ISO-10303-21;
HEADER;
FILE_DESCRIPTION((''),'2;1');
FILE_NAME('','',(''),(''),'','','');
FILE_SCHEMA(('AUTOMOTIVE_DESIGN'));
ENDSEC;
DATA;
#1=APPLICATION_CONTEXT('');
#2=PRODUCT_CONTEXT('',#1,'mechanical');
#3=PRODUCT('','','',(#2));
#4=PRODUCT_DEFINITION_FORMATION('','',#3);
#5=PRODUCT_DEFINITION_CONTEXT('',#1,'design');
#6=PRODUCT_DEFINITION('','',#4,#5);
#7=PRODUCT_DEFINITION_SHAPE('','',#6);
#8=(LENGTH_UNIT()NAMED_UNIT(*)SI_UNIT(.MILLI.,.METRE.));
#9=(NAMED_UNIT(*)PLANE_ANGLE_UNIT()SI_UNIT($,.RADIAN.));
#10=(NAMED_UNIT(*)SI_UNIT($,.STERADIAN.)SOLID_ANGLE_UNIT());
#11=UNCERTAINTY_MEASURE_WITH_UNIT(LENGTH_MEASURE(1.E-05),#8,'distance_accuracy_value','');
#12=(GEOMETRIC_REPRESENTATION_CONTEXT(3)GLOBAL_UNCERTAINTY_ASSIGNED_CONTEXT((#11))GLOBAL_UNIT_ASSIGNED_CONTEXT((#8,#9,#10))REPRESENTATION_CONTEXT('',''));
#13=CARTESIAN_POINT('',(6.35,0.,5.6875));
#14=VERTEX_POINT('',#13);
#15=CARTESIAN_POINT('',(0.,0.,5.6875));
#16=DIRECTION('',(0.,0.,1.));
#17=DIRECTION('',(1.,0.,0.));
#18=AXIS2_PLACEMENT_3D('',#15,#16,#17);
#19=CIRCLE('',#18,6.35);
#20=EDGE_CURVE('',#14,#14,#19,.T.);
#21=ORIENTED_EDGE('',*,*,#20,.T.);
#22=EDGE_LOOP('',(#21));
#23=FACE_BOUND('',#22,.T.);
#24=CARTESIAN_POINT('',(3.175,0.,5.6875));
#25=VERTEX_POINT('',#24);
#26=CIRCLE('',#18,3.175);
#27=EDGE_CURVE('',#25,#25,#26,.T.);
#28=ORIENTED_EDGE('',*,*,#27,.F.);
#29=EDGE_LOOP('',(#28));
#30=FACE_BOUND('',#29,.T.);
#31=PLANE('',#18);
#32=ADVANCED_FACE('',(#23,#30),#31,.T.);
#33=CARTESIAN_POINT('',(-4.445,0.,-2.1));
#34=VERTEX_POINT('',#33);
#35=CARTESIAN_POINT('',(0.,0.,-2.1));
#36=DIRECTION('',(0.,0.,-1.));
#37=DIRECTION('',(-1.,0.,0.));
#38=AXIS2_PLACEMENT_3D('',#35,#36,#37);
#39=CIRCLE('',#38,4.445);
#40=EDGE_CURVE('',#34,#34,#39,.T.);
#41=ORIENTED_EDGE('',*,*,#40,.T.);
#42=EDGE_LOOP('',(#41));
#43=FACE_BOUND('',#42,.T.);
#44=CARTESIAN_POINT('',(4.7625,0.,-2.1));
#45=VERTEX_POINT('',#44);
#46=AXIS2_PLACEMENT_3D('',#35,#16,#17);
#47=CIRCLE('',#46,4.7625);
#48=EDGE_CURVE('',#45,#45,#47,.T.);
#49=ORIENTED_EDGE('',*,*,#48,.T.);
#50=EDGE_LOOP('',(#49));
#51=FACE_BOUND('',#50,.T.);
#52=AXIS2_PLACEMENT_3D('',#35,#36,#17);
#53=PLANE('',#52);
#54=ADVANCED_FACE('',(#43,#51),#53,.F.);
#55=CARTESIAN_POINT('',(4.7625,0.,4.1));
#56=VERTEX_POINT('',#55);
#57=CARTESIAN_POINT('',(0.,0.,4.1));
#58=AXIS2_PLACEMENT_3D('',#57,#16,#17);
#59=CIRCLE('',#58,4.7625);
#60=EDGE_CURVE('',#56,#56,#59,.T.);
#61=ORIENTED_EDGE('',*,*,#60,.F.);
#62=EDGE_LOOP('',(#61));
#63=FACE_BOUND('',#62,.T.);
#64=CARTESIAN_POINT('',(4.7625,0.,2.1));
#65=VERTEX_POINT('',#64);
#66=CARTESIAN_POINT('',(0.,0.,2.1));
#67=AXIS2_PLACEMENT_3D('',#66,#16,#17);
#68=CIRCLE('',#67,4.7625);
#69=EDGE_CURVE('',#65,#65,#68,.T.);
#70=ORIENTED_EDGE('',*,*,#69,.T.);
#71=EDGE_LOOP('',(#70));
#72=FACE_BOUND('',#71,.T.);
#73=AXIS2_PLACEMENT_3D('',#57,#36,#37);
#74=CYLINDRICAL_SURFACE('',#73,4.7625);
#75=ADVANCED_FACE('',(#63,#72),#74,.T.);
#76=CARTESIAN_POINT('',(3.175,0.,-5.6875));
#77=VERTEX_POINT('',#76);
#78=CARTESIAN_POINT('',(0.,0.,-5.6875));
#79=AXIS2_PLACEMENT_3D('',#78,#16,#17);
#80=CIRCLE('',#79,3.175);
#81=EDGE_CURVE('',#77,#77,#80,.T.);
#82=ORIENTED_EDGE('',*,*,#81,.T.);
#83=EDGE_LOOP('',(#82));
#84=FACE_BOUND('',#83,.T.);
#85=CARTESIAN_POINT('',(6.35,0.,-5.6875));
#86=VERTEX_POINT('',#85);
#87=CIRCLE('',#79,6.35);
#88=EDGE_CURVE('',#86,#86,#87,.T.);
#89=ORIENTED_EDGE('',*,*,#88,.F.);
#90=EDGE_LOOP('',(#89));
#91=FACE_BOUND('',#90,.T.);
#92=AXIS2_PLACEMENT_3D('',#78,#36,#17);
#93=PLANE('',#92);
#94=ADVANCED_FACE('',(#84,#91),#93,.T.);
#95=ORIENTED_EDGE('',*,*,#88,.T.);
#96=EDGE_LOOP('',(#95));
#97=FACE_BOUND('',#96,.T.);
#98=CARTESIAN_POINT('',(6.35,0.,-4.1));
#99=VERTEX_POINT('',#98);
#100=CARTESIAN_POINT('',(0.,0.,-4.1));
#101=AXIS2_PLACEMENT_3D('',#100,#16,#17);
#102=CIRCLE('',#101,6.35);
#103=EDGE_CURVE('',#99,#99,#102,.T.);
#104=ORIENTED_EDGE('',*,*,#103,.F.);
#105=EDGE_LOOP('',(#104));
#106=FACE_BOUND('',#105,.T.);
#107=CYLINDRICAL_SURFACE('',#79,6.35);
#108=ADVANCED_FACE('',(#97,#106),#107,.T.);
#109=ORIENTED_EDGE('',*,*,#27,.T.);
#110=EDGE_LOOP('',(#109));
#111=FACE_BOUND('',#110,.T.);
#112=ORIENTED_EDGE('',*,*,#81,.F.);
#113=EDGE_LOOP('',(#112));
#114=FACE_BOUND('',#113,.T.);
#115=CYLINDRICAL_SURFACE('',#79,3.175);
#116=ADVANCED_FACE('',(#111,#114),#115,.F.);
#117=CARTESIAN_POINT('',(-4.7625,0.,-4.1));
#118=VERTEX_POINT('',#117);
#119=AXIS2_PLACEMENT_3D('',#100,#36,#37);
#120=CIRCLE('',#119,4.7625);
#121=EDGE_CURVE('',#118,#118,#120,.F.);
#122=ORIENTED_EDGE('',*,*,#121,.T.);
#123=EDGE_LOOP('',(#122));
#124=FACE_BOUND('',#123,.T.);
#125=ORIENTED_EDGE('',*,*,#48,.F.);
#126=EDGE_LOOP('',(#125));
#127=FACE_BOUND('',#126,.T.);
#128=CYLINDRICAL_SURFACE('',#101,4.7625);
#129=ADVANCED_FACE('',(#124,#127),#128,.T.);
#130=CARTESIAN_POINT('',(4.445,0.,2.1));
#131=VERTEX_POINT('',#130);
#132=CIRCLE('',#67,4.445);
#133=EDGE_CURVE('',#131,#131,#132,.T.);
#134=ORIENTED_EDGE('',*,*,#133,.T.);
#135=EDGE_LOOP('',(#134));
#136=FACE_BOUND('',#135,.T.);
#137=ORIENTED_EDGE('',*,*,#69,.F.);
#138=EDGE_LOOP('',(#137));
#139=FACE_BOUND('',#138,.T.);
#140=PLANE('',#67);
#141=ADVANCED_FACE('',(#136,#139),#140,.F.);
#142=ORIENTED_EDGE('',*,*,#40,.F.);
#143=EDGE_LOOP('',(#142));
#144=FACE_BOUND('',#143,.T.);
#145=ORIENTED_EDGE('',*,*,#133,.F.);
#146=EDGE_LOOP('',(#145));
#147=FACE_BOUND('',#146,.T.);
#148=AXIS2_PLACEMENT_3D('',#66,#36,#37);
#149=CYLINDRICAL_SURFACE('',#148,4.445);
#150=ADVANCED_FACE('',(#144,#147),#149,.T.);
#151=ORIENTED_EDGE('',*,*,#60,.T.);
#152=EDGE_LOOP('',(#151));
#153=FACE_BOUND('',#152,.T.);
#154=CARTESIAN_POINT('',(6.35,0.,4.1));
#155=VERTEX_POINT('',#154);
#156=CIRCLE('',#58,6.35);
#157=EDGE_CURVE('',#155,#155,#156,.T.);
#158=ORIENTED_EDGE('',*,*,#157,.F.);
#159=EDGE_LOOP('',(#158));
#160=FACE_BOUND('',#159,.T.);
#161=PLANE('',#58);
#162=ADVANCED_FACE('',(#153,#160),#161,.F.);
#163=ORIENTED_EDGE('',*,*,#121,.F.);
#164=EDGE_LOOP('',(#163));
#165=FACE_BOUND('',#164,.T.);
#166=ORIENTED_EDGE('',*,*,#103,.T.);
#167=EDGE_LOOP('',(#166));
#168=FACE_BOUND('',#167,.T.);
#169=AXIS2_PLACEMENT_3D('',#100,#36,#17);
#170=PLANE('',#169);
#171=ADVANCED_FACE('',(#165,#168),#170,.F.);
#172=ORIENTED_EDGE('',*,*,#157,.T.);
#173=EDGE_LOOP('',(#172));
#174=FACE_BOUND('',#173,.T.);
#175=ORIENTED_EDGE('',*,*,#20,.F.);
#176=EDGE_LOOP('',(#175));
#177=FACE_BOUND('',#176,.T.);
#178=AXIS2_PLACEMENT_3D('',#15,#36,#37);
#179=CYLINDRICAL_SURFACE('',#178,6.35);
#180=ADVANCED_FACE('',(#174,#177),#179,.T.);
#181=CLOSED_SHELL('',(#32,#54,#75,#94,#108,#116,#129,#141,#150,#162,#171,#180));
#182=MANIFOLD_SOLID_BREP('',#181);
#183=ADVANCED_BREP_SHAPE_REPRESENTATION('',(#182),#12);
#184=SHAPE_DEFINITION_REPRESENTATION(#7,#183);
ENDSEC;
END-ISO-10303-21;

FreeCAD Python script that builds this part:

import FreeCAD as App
import Part
import Sketcher
Q = App.Units.Quantity

doc = App.newDocument("Part")
params = doc.addObject("Spreadsheet::Sheet", "Params")
for row, (alias, value) in enumerate([
    ("sketch1_diameter", "0.35 in"),
    ("pad1_length", "2.1 mm"),
    ("sketch2_diameter", "0.375 in"),
    ("pad2_length", "2 mm"),
    ("sketch3_diameter", "0.5 in"),
    ("pad3_length", "0.0625 in"),
    ("sketch4_diameter", "0.25 in"),
], start=1):
    params.set(f"A{row}", alias)
    params.set(f"B{row}", "=" + value)
    params.setAlias(f"B{row}", alias)

body = doc.addObject("PartDesign::Body", "Body")

# Sketch on XY plane
sketch1 = body.newObject("Sketcher::SketchObject", "Sketch")
sketch1.AttachmentSupport = (doc.getObject("XY_Plane"), [""])
sketch1.MapMode = "FlatFace"
sketch1.addGeometry(Part.Circle(App.Vector(0, 0, 0), App.Vector(0, 0, 1), 4.445), False)
sketch1.addConstraint([
    Sketcher.Constraint("Coincident", 0, 3, -1, 1),
    Sketcher.Constraint("Diameter", 0, Q("0.35 in")),
])
sketch1.setExpression("Constraints[1]", "Params.sketch1_diameter")
pad1 = body.newObject("PartDesign::Pad", "Pad")
pad1.Profile = sketch1
pad1.setExpression("Length", "Params.pad1_length")

# Sketch on XY plane
sketch2 = body.newObject("Sketcher::SketchObject", "Sketch001")
sketch2.AttachmentSupport = (doc.getObject("XY_Plane"), [""])
sketch2.MapMode = "FlatFace"
sketch2.AttachmentOffset = App.Placement(App.Vector(0, 0, 2.1), App.Rotation())
sketch2.addGeometry(Part.Circle(App.Vector(0, 0, 0), App.Vector(0, 0, 1), 4.7625), False)
sketch2.addConstraint([
    Sketcher.Constraint("Coincident", 0, 3, -1, 1),
    Sketcher.Constraint("Diameter", 0, Q("0.375 in")),
])
sketch2.setExpression("Constraints[1]", "Params.sketch2_diameter")
pad2 = body.newObject("PartDesign::Pad", "Pad001")
pad2.Profile = sketch2
pad2.setExpression("Length", "Params.pad2_length")

# Sketch on XY plane
sketch3 = body.newObject("Sketcher::SketchObject", "Sketch002")
sketch3.AttachmentSupport = (doc.getObject("XY_Plane"), [""])
sketch3.MapMode = "FlatFace"
sketch3.AttachmentOffset = App.Placement(App.Vector(0, 0, 4.1), App.Rotation())
sketch3.addGeometry(Part.Circle(App.Vector(0, 0, 0), App.Vector(0, 0, 1), 6.35), False)
sketch3.addConstraint([
    Sketcher.Constraint("Coincident", 0, 3, -1, 1),
    Sketcher.Constraint("Diameter", 0, Q("0.5 in")),
])
sketch3.setExpression("Constraints[1]", "Params.sketch3_diameter")
pad3 = body.newObject("PartDesign::Pad", "Pad002")
pad3.Profile = sketch3
pad3.setExpression("Length", "Params.pad3_length")
doc.recompute()

mirrored = body.newObject("PartDesign::Mirrored", "Mirrored")
mirrored.Originals = [pad1, pad2, pad3]
mirrored.MirrorPlane = (doc.getObject("XY_Plane"), [""])
body.Tip = mirrored

# Sketch on XY plane
sketch4 = body.newObject("Sketcher::SketchObject", "Sketch003")
sketch4.AttachmentSupport = (doc.getObject("XY_Plane"), [""])
sketch4.MapMode = "FlatFace"
sketch4.AttachmentOffset = App.Placement(App.Vector(0, 0, 5.6875), App.Rotation())
sketch4.addGeometry(Part.Circle(App.Vector(0, 0, 0), App.Vector(0, 0, 1), 3.175), False)
sketch4.addConstraint([
    Sketcher.Constraint("Coincident", 0, 3, -1, 1),
    Sketcher.Constraint("Diameter", 0, Q("0.25 in")),
])
sketch4.setExpression("Constraints[1]", "Params.sketch4_diameter")
pocket1 = body.newObject("PartDesign::Pocket", "Pocket")
pocket1.Profile = sketch4
pocket1.Type = "ThroughAll"

doc.recompute()
